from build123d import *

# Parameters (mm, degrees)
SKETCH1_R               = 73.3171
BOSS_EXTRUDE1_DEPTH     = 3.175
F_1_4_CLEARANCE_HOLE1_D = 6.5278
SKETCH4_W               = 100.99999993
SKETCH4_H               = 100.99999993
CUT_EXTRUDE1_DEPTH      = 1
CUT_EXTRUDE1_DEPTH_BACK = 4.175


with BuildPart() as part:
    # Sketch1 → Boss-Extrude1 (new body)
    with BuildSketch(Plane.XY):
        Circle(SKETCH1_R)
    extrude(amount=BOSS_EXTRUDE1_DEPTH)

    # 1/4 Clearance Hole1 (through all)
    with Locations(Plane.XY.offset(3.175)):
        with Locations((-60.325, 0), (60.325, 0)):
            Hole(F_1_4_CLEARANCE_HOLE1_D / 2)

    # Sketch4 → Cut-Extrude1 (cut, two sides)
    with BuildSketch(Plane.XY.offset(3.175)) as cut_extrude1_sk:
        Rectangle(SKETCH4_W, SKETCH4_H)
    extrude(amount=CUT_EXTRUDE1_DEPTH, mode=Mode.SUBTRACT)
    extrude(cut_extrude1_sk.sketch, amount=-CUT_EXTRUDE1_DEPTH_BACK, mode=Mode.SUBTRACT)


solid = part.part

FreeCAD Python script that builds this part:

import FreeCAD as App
import Part
import Sketcher
Q = App.Units.Quantity

doc = App.newDocument("Part")
body = doc.addObject("PartDesign::Body", "Body")

# Sketch on XY plane
sketch1 = body.newObject("Sketcher::SketchObject", "Sketch")
sketch1.AttachmentSupport = (doc.getObject("XY_Plane"), [""])
sketch1.MapMode = "FlatFace"
sketch1.addGeometry(Part.Circle(App.Vector(0, 0, 0), App.Vector(0, 0, 1), 73), False)
sketch1.addConstraint([
    Sketcher.Constraint("Coincident", 0, 3, -1, 1),
    Sketcher.Constraint("Diameter", 0, Q("5.773 in")),
])
pad1 = body.newObject("PartDesign::Pad", "Pad")
pad1.Profile = sketch1
pad1.Length = Q("0.125 in")

# Sketch on XY plane
sketch2 = body.newObject("Sketcher::SketchObject", "Sketch001")
sketch2.AttachmentSupport = (doc.getObject("XY_Plane"), [""])
sketch2.MapMode = "FlatFace"
sketch2.AttachmentOffset = App.Placement(App.Vector(0, 0, 0.125 * 25.4), App.Rotation())
sketch2.addGeometry([
    Part.Circle(App.Vector(-60.3, 0, 0), App.Vector(0, 0, 1), 3.3),
    Part.Circle(App.Vector(60.3, 0, 0), App.Vector(0, 0, 1), 3.3),
], False)
sketch2.addConstraint([
    Sketcher.Constraint("Equal", 0, 1),
    Sketcher.Constraint("Symmetric", 0, 3, 1, 3, -1, 1),
    Sketcher.Constraint("PointOnObject", 0, 3, -1),
    Sketcher.Constraint("Diameter", 0, Q("0.257 in")),
    Sketcher.Constraint("DistanceX", 0, 3, 1, 3, Q("4.75 in")),
])
doc.recompute()
hole = body.newObject("PartDesign::Hole", "Hole")
hole.Profile = sketch2
hole.ThreadType = "None"
hole.Diameter = Q("0.257 in")
hole.DepthType = "ThroughAll"

# Sketch on XY plane
sketch3 = body.newObject("Sketcher::SketchObject", "Sketch002")
sketch3.AttachmentSupport = (doc.getObject("XY_Plane"), [""])
sketch3.MapMode = "FlatFace"
sketch3.AttachmentOffset = App.Placement(App.Vector(0, 0, 0.125 * 25.4), App.Rotation())
sketch3.addGeometry([
    Part.LineSegment(App.Vector(-50, 50, 0), App.Vector(-50, -50, 0)),
    Part.LineSegment(App.Vector(-50, -50, 0), App.Vector(50, -50, 0)),
    Part.LineSegment(App.Vector(50, -50, 0), App.Vector(50, 50, 0)),
    Part.LineSegment(App.Vector(50, 50, 0), App.Vector(-50, 50, 0)),
], False)
sketch3.addConstraint([
    Sketcher.Constraint("Coincident", 0, 2, 1, 1),
    Sketcher.Constraint("Coincident", 1, 2, 2, 1),
    Sketcher.Constraint("Coincident", 2, 2, 3, 1),
    Sketcher.Constraint("Coincident", 3, 2, 0, 1),
    Sketcher.Constraint("Vertical", 0),
    Sketcher.Constraint("Horizontal", 1),
    Sketcher.Constraint("Vertical", 2),
    Sketcher.Constraint("Horizontal", 3),
    Sketcher.Constraint("Symmetric", 0, 2, 2, 2, -1, 1),
    Sketcher.Constraint("Equal", 3, 0),
    Sketcher.Constraint("DistanceX", 1, 1, 1, 2, Q("101 mm")),
])
pocket1 = body.newObject("PartDesign::Pocket", "Pocket")
pocket1.Profile = sketch3
pocket1.Type = "ThroughAll"
pocket1.Midplane = True

doc.recompute()
